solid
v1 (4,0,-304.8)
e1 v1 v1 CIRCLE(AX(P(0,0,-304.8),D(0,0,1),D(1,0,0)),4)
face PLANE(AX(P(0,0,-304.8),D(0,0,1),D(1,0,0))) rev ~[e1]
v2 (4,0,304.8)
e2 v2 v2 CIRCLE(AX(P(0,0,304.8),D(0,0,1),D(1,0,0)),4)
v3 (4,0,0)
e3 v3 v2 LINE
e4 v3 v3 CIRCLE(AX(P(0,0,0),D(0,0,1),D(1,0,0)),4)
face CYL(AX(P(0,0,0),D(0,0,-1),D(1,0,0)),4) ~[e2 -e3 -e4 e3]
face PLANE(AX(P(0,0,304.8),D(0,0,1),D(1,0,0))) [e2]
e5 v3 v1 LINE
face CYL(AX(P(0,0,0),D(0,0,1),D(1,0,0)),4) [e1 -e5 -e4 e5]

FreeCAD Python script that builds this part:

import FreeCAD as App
import Part
import Sketcher
from FreeCAD import Vector

doc = App.newDocument("Part")
body = doc.addObject("PartDesign::Body", "Body")

# Sketch on XY plane
sketch1 = body.newObject("Sketcher::SketchObject", "Sketch")
sketch1.AttachmentSupport = (doc.getObject("XY_Plane"), [""])
sketch1.MapMode = "FlatFace"
sketch1.addGeometry(Part.Circle(Vector(0, 0, 0), Vector(0, 0, 1), 4), False)
sketch1.addConstraint(Sketcher.Constraint("Coincident", 0, 3, -1, 1))
sketch1.addConstraint(Sketcher.Constraint("Diameter", 0, 8.0))
pad1 = body.newObject("PartDesign::Pad", "Pad")
pad1.Profile = sketch1
pad1.Length = 609.6
pad1.Midplane = True

doc.recompute()
